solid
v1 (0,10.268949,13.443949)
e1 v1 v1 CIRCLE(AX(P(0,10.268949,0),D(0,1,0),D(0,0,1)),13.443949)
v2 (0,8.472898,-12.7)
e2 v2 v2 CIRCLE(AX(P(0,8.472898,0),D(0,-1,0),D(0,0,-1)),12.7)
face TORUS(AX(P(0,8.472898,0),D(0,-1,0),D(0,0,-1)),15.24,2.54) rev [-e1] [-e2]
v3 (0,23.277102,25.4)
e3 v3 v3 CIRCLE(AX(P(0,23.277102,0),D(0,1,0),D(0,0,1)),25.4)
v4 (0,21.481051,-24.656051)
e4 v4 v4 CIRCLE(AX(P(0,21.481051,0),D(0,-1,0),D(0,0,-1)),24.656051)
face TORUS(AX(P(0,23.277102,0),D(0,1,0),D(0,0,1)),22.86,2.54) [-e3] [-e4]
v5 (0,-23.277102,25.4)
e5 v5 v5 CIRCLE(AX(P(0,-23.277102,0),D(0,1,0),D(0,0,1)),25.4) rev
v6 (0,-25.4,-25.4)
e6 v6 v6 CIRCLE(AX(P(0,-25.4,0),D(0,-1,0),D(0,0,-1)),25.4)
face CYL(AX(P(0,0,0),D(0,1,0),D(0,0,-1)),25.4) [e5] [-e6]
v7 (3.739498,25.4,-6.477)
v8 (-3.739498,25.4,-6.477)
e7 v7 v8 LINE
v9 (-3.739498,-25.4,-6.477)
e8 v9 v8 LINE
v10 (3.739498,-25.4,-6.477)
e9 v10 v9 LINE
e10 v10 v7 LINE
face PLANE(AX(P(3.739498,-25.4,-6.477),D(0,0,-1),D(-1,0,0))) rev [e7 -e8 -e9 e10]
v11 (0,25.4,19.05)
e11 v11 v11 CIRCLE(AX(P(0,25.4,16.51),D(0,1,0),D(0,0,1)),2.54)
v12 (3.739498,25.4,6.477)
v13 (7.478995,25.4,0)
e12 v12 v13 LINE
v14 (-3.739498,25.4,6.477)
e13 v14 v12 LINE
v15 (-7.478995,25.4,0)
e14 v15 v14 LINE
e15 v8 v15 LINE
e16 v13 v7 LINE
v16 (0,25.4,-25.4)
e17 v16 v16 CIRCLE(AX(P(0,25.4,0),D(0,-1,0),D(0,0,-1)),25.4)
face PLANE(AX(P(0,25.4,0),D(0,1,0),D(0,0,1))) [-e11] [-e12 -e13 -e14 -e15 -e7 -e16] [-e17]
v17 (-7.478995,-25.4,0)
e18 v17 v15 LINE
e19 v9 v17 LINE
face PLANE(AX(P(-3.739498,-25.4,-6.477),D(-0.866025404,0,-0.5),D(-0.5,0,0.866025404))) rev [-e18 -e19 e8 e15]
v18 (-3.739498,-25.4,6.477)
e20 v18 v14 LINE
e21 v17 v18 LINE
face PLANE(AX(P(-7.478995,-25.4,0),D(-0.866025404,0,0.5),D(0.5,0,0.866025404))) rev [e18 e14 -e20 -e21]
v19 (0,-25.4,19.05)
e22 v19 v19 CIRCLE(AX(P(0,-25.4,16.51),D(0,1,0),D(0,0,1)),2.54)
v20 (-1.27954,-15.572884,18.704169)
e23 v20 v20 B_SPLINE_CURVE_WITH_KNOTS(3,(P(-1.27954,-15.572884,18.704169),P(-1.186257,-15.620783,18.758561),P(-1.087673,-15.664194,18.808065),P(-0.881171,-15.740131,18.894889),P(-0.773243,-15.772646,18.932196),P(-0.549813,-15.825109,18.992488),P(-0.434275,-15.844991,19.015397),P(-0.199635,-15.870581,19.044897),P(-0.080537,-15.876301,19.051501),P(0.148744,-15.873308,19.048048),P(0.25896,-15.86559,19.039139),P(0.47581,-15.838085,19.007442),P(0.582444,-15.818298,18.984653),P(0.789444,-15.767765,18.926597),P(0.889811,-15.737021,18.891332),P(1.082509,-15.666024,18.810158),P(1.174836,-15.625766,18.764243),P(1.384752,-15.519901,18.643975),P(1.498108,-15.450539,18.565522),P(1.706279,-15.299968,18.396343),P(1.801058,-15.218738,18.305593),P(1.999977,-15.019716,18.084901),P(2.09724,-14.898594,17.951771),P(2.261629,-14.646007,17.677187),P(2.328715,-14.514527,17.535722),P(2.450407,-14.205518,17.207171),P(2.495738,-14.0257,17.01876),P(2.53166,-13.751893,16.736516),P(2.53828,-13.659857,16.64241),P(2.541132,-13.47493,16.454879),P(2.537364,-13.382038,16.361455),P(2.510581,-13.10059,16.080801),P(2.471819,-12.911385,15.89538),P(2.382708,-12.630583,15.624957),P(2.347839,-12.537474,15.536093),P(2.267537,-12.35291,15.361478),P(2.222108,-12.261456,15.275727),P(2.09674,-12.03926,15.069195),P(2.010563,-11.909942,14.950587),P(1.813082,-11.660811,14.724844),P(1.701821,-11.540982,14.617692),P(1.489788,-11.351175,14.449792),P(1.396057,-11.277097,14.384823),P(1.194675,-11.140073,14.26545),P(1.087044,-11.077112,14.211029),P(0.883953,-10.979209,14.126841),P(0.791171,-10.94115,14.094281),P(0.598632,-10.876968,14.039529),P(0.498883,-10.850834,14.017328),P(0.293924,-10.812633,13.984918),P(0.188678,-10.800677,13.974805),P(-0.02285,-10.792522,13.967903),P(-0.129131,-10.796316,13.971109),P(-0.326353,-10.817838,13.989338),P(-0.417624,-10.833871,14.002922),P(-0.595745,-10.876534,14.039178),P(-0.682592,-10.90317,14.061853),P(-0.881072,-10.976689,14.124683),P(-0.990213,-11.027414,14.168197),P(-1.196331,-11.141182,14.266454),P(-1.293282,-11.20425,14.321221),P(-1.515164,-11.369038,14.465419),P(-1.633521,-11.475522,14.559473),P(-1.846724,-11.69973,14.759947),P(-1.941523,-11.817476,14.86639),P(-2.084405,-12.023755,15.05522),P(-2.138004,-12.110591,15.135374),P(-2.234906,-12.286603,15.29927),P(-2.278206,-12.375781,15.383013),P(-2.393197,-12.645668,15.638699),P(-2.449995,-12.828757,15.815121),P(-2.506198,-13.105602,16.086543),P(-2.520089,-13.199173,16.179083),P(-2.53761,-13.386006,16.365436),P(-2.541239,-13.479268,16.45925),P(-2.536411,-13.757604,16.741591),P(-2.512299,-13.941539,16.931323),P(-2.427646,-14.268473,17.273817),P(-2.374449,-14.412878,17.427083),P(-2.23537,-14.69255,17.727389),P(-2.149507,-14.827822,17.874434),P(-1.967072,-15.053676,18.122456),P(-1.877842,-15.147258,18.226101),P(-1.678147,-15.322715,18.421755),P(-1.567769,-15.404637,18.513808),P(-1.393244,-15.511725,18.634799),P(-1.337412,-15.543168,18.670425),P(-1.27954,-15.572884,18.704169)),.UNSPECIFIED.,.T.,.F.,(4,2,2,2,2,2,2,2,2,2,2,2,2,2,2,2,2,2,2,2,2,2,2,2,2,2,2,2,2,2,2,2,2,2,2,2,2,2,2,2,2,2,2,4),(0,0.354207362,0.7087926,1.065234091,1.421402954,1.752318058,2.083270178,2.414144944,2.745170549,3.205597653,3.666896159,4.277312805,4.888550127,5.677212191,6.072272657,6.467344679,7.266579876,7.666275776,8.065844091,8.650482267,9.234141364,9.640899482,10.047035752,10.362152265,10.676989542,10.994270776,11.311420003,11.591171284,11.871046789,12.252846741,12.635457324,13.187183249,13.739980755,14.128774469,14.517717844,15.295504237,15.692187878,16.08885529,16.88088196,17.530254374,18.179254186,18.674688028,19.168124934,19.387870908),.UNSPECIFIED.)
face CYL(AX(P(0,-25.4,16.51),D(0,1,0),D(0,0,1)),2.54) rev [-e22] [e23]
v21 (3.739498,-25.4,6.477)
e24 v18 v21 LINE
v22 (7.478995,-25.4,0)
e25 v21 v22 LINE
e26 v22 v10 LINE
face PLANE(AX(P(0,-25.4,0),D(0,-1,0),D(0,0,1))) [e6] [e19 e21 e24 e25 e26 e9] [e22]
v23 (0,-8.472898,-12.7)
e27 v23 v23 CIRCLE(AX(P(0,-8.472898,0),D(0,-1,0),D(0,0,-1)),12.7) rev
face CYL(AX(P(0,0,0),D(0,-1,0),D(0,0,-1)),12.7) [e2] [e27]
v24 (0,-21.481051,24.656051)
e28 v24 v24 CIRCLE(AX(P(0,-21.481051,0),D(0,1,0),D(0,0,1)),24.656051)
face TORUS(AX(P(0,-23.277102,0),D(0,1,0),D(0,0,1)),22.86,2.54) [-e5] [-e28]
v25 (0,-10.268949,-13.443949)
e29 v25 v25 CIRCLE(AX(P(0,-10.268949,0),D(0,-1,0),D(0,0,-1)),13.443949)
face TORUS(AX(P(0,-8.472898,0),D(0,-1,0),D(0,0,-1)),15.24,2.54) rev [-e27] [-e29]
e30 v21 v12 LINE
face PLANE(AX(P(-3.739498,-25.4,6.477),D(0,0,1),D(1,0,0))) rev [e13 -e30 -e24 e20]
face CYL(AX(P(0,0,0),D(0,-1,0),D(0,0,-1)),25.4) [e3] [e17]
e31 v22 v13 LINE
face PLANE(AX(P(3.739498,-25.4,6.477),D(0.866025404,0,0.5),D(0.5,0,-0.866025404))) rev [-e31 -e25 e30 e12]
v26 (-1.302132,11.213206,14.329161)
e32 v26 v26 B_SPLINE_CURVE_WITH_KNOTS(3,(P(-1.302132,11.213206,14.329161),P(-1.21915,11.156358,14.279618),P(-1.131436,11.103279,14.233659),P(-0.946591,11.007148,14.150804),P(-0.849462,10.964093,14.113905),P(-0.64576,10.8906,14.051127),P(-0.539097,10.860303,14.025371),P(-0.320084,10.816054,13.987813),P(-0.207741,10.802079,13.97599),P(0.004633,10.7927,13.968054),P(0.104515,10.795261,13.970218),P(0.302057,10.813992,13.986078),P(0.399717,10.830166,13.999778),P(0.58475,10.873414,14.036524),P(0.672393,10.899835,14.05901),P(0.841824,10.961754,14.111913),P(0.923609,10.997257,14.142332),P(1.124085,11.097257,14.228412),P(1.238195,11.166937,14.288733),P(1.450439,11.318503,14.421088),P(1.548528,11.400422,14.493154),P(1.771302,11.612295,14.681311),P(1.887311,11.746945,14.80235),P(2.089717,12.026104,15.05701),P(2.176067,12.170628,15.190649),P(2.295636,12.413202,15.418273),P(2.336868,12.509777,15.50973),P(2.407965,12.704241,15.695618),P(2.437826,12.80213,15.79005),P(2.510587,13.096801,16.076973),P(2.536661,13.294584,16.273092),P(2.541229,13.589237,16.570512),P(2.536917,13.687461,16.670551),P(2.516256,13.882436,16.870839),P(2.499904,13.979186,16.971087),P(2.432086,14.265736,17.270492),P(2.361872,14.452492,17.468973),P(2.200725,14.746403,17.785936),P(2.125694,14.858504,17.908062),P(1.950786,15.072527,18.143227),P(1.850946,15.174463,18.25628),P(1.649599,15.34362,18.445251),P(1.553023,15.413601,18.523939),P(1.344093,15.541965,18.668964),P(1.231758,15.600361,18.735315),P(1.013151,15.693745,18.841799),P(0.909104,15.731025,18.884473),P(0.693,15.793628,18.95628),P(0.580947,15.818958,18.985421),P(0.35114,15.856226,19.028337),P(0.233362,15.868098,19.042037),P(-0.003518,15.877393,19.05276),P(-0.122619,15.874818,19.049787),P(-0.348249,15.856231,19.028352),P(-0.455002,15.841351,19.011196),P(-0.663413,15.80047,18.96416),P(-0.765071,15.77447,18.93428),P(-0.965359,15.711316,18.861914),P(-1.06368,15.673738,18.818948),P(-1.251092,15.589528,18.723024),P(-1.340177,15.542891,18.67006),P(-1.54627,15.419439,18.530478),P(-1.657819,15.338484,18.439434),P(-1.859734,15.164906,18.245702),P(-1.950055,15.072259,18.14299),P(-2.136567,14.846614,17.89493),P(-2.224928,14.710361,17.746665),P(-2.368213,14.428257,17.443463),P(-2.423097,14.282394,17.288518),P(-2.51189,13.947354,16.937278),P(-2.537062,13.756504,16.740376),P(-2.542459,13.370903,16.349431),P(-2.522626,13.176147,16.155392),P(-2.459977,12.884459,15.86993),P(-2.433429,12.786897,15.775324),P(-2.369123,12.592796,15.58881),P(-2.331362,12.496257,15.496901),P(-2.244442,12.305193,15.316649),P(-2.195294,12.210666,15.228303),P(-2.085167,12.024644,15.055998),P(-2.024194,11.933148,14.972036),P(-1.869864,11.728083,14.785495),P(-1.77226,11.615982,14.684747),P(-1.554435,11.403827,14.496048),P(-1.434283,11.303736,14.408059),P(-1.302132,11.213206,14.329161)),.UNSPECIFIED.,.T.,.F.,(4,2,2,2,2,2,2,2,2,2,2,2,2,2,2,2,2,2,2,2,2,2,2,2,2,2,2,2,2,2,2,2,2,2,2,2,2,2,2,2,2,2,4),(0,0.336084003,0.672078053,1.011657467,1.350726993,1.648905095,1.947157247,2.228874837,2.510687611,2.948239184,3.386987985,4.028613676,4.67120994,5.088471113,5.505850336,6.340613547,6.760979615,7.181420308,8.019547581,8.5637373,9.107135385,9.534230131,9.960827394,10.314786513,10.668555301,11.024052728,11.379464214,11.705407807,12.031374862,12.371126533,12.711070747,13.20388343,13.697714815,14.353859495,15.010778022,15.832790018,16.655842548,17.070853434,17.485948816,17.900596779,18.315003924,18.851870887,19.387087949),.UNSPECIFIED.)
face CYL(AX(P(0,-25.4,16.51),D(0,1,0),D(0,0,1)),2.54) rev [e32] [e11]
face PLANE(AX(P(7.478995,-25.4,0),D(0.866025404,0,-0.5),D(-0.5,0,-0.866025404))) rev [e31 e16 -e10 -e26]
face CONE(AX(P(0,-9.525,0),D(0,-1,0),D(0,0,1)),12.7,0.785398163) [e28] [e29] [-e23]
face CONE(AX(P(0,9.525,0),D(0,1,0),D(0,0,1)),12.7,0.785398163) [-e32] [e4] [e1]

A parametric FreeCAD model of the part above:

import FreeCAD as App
import Part
import Sketcher
Q = App.Units.Quantity


def edges_at(feature, points):
    """Names of the edges that pass closest to the given points."""
    edges = feature.Shape.Edges
    near = lambda p: min(range(len(edges)), key=lambda i: edges[i].distToShape(Part.Vertex(*p))[0])
    return sorted({f"Edge{near(p) + 1}" for p in points})


def add_polygon(sketch, points):
    """Adds a closed chain of lines whose ends are joined by coincident constraints."""
    first, n = sketch.GeometryCount, len(points)
    for a, b in zip(points, points[1:] + points[:1]):
        sketch.addGeometry(Part.LineSegment(App.Vector(*a, 0), App.Vector(*b, 0)), False)
    for i in range(n):
        sketch.addConstraint(Sketcher.Constraint("Coincident", first + i, 2, first + (i + 1) % n, 1))

doc = App.newDocument("Part")
body = doc.addObject("PartDesign::Body", "Body")

# Sketch on YZ plane
sketch1 = body.newObject("Sketcher::SketchObject", "Sketch")
sketch1.AttachmentSupport = (doc.getObject("YZ_Plane"), [""])
sketch1.MapMode = "FlatFace"
add_polygon(sketch1, [(25.4, 0), (0, 0), (0, -12.7), (9.525, -12.7), (22.225, -25.4), (25.4, -25.4)])  # lines 0-5
sketch1.addConstraint([
    Sketcher.Constraint("Horizontal", 0),
    Sketcher.Constraint("Vertical", 1),
    Sketcher.Constraint("Horizontal", 2),
    Sketcher.Constraint("Horizontal", 4),
    Sketcher.Constraint("Vertical", 5),
    Sketcher.Constraint("Coincident", 0, 2, -1, 1),
    Sketcher.Constraint("Equal", 0, 5),
    Sketcher.Constraint("DistanceX", 0, 2, 0, 1, Q("1 in")),
    Sketcher.Constraint("DistanceY", 1, 2, 1, 1, Q("0.5 in")),
    Sketcher.Constraint("Angle", 3, Q("-45 deg")),
    Sketcher.Constraint("DistanceX", 2, 1, 2, 2, Q("0.375 in")),
])
revolution = body.newObject("PartDesign::Revolution", "Revolution")
revolution.Profile = sketch1
revolution.ReferenceAxis = (sketch1, ["H_Axis"])
revolution.Angle = 360
doc.recompute()

mirrored = body.newObject("PartDesign::Mirrored", "Mirrored")
mirrored.Originals = [revolution]
mirrored.MirrorPlane = (doc.getObject("XZ_Plane"), [""])
body.Tip = mirrored

# Sketch on XZ plane
sketch2 = body.newObject("Sketcher::SketchObject", "Sketch001")
sketch2.AttachmentSupport = (doc.getObject("XZ_Plane"), [""])
sketch2.MapMode = "FlatFace"
sketch2.AttachmentOffset = App.Placement(App.Vector(0, 0, -1 * 25.4), App.Rotation())
sketch2.addGeometry(Part.Circle(App.Vector(0, 16.51, 0), App.Vector(0, 0, 1), 2.54), False)  # 0
add_polygon(sketch2, [(-7.478995, 0), (-3.739498, 6.477), (3.739498, 6.477), (7.478995, 0), (3.739498, -6.477), (-3.739498, -6.477)])  # lines 1-6
sketch2.addConstraint([
    Sketcher.Constraint("Horizontal", 2),
    Sketcher.Constraint("Horizontal", 5),
    Sketcher.Constraint("Symmetric", 1, 2, 4, 2, -1, 1),
    Sketcher.Constraint("Symmetric", 3, 2, 6, 2, -1, 1),
    Sketcher.Constraint("PointOnObject", 0, 3, -2),
    Sketcher.Constraint("PointOnObject", 3, 2, -1),
    Sketcher.Constraint("Parallel", 3, 6),
    Sketcher.Constraint("Vertical", 2, 2, 4, 2),
    Sketcher.Constraint("Diameter", 0, Q("0.2 in")),
    Sketcher.Constraint("Angle", 1, Q("60 deg")),
    Sketcher.Constraint("DistanceY", -1, 1, 0, 3, Q("0.65 in")),
    Sketcher.Constraint("DistanceY", 4, 2, 2, 2, Q("0.51 in")),
    Sketcher.Constraint("DistanceX", 2, 1, 2, 2, Q("7.478995 mm")),
])
pocket1 = body.newObject("PartDesign::Pocket", "Pocket")
pocket1.Profile = sketch2
pocket1.Type = "ThroughAll"
pocket1.Reversed = True
doc.recompute()

fillet = body.newObject("PartDesign::Fillet", "Fillet")
fillet.Base = (pocket1, edges_at(pocket1, [
    (0, -22.225, 25.4),
    (0, -9.525, 12.7),
    (0, 9.525, 12.7),
    (0, 22.225, 25.4),
]))
fillet.Radius = Q("0.1 in")

doc.recompute()
